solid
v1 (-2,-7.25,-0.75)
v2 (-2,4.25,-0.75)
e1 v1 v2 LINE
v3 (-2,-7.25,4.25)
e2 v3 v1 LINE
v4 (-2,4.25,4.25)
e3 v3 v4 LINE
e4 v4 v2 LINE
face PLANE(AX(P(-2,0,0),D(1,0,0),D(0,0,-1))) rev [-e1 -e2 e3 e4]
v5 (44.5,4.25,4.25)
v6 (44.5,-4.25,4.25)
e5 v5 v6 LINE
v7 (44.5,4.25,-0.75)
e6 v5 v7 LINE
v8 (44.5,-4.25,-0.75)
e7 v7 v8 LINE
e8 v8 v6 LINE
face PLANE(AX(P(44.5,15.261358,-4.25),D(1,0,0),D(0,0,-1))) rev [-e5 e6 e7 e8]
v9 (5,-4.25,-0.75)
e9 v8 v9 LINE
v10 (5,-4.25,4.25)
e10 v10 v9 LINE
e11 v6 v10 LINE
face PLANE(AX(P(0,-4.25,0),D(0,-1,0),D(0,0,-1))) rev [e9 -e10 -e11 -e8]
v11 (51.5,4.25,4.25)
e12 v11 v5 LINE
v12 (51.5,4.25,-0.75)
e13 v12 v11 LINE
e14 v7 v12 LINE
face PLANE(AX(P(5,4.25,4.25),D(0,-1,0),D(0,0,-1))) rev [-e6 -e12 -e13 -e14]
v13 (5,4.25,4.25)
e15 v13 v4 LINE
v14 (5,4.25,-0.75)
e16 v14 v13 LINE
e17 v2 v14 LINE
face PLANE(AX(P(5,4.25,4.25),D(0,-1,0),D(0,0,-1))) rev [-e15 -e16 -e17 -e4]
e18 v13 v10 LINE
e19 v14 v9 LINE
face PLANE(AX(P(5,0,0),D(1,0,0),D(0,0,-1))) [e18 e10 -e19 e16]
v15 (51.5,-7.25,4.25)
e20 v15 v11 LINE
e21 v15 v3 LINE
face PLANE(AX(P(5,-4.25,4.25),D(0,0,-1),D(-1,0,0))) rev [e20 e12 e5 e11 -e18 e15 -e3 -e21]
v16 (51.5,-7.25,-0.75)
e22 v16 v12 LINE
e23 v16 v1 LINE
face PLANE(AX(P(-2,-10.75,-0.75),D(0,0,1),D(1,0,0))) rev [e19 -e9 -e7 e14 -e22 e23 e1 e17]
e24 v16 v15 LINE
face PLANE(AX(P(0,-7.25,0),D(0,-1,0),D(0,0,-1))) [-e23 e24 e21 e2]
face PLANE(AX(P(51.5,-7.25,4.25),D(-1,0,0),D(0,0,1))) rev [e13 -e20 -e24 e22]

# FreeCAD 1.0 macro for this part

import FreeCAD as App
import Part
import Sketcher
from FreeCAD import Vector
Q = App.Units.Quantity

doc = App.newDocument("Part")
params = doc.addObject("Spreadsheet::Sheet", "Params")
for row, (alias, value) in enumerate([
    ("sketch1_width", "8.5 mm"),
    ("sketch1_height", "3.41 mm"),
    ("sketch1_length", "3.41 mm"),
    ("pad1_length", "5 mm"),
    ("sketch2_width", "8.5 mm"),
    ("pad2_length", "2 mm"),
    ("sketch3_diameter", "3 mm"),
    ("pocket1_length", "2 mm"),
    ("sketch4_width", "53.5 mm"),
    ("sketch4_height", "8.5 mm"),
    ("pad3_length", "3 mm"),
    ("sketch5_width", "7 mm"),
    ("sketch5_height", "8.5 mm"),
    ("pad4_length", "8.5 mm"),
    ("sketch6_diameter", "3 mm"),
    ("sketch6_height", "3.41 mm"),
    ("sketch6_length", "3.41 mm"),
    ("pad5_length", "2.5 mm"),
    ("sketch7_width", "8.5 mm"),
    ("sketch7_height", "3.41 mm"),
    ("sketch7_length", "3.41 mm"),
    ("pad6_length", "1 mm"),
    ("sketch8_height", "3.41 mm"),
    ("sketch8_length", "3.41 mm"),
    ("pocket2_length", "0.5 mm"),
    ("sketch9_width", "8.5 mm"),
    ("pad7_length", "8 mm"),
    ("sketch10_width", "8.5 mm"),
    ("pocket3_length", "1 mm"),
    ("sketch11_width", "53.5 mm"),
    ("sketch11_height", "3.5 mm"),
    ("pocket4_length", "15 mm"),
    ("sketch12_height", "5 mm"),
    ("sketch12_width", "8.5 mm"),
    ("pad8_length", "7 mm"),
], start=1):
    params.set(f"A{row}", alias)
    params.set(f"B{row}", "=" + value)
    params.setAlias(f"B{row}", alias)

body = doc.addObject("PartDesign::Body", "Body")

sketch1 = body.newObject("Sketcher::SketchObject", "Sketch")
sketch1.AttachmentSupport = (doc.getObject("YZ_Plane"), [""])
sketch1.MapMode = "FlatFace"
sketch1.addGeometry([
    Part.LineSegment(Vector(4.2, 4.2, 0), Vector(-4.2, 4.2, 0)),
    Part.LineSegment(Vector(-4.2, 4.2, 0), Vector(-4.2, -4.2, 0)),
    Part.LineSegment(Vector(-4.2, -4.2, 0), Vector(4.2, -4.2, 0)),
    Part.LineSegment(Vector(4.2, -4.2, 0), Vector(4.2, 4.2, 0)),
    Part.LineSegment(Vector(3, 1.7, 0), Vector(3, -1.7, 0)),
    Part.LineSegment(Vector(3, -1.7, 0), Vector(0, -3.4, 0)),
    Part.LineSegment(Vector(0, -3.4, 0), Vector(-3, -1.7, 0)),
    Part.LineSegment(Vector(-3, -1.7, 0), Vector(-3, 1.7, 0)),
    Part.LineSegment(Vector(-3, 1.7, 0), Vector(0, 3.4, 0)),
    Part.LineSegment(Vector(0, 3.4, 0), Vector(3, 1.7, 0)),
], False)
sketch1.addConstraint([
    Sketcher.Constraint("Coincident", 0, 2, 1, 1),
    Sketcher.Constraint("Coincident", 1, 2, 2, 1),
    Sketcher.Constraint("Coincident", 2, 2, 3, 1),
    Sketcher.Constraint("Coincident", 3, 2, 0, 1),
    Sketcher.Constraint("Coincident", 4, 2, 5, 1),
    Sketcher.Constraint("Coincident", 5, 2, 6, 1),
    Sketcher.Constraint("Coincident", 6, 2, 7, 1),
    Sketcher.Constraint("Coincident", 7, 2, 8, 1),
    Sketcher.Constraint("Coincident", 8, 2, 9, 1),
    Sketcher.Constraint("Coincident", 9, 2, 4, 1),
    Sketcher.Constraint("Horizontal", 0),
    Sketcher.Constraint("Vertical", 1),
    Sketcher.Constraint("Horizontal", 2),
    Sketcher.Constraint("Vertical", 3),
    Sketcher.Constraint("Vertical", 4),
    Sketcher.Constraint("Vertical", 7),
    Sketcher.Constraint("Symmetric", 0, 2, 2, 2, -1, 1),
    Sketcher.Constraint("Symmetric", 4, 2, 7, 2, -1, 1),
    Sketcher.Constraint("Symmetric", 5, 2, 8, 2, -1, 1),
    Sketcher.Constraint("PointOnObject", 5, 2, -2),
    Sketcher.Constraint("Parallel", 6, 9),
    Sketcher.Constraint("Horizontal", 4, 2, 6, 2),
    Sketcher.Constraint("Equal", 2, 1),
    Sketcher.Constraint("Angle", 5, Q("-150 deg")),
    Sketcher.Constraint("DistanceX", 0, 2, 0, 1, 8.5),
    Sketcher.Constraint("DistanceY", 4, 2, 4, 1, 3.41),
    Sketcher.Constraint("Distance", 5, 3.41),
])
sketch1.setExpression("Constraints[24]", "Params.sketch1_width")
sketch1.setExpression("Constraints[25]", "Params.sketch1_height")
sketch1.setExpression("Constraints[26]", "Params.sketch1_length")
pad1 = body.newObject("PartDesign::Pad", "Pad")
pad1.Profile = sketch1
pad1.setExpression("Length", "Params.pad1_length")

sketch2 = body.newObject("Sketcher::SketchObject", "Sketch001")
sketch2.AttachmentSupport = (doc.getObject("YZ_Plane"), [""])
sketch2.MapMode = "FlatFace"
sketch2.addGeometry([
    Part.LineSegment(Vector(4, -4, 0), Vector(-4, -4, 0)),
    Part.LineSegment(Vector(-4, -4, 0), Vector(-4, 4, 0)),
    Part.LineSegment(Vector(-4, 4, 0), Vector(4, 4, 0)),
    Part.LineSegment(Vector(4, 4, 0), Vector(4, -4, 0)),
], False)
sketch2.addConstraint([
    Sketcher.Constraint("Coincident", 0, 2, 1, 1),
    Sketcher.Constraint("Coincident", 1, 2, 2, 1),
    Sketcher.Constraint("Coincident", 2, 2, 3, 1),
    Sketcher.Constraint("Coincident", 3, 2, 0, 1),
    Sketcher.Constraint("Horizontal", 0),
    Sketcher.Constraint("Vertical", 1),
    Sketcher.Constraint("Horizontal", 2),
    Sketcher.Constraint("Vertical", 3),
    Sketcher.Constraint("Symmetric", 0, 2, 2, 2, -1, 1),
    Sketcher.Constraint("Equal", 2, 1),
    Sketcher.Constraint("DistanceX", 0, 2, 0, 1, 8.5),
])
sketch2.setExpression("Constraints[10]", "Params.sketch2_width")
pad2 = body.newObject("PartDesign::Pad", "Pad001")
pad2.Profile = sketch2
pad2.setExpression("Length", "Params.pad2_length")
pad2.Reversed = True

sketch3 = body.newObject("Sketcher::SketchObject", "Sketch002")
sketch3.AttachmentSupport = (doc.getObject("YZ_Plane"), [""])
sketch3.MapMode = "FlatFace"
sketch3.addGeometry(Part.Circle(Vector(0, 0, 0), Vector(0, 0, 1), 1.5), False)
sketch3.addConstraint([
    Sketcher.Constraint("Coincident", 0, 3, -1, 1),
    Sketcher.Constraint("Diameter", 0, 3.0),
])
sketch3.setExpression("Constraints[1]", "Params.sketch3_diameter")
pocket1 = body.newObject("PartDesign::Pocket", "Pocket")
pocket1.Profile = sketch3
pocket1.setExpression("Length", "Params.pocket1_length")

sketch4 = body.newObject("Sketcher::SketchObject", "Sketch003")
sketch4.AttachmentSupport = (doc.getObject("XZ_Plane"), [""])
sketch4.MapMode = "FlatFace"
sketch4.AttachmentOffset = App.Placement(Vector(0, 0, 4.25), App.Rotation())
sketch4.addGeometry([
    Part.LineSegment(Vector(-2, 4, 0), Vector(-2, -4, 0)),
    Part.LineSegment(Vector(-2, -4, 0), Vector(52, -4, 0)),
    Part.LineSegment(Vector(52, -4, 0), Vector(52, 4, 0)),
    Part.LineSegment(Vector(52, 4, 0), Vector(-2, 4, 0)),
], False)
sketch4.addConstraint([
    Sketcher.Constraint("Coincident", 0, 2, 1, 1),
    Sketcher.Constraint("Coincident", 1, 2, 2, 1),
    Sketcher.Constraint("Coincident", 2, 2, 3, 1),
    Sketcher.Constraint("Coincident", 3, 2, 0, 1),
    Sketcher.Constraint("Vertical", 0),
    Sketcher.Constraint("Horizontal", 1),
    Sketcher.Constraint("Vertical", 2),
    Sketcher.Constraint("Horizontal", 3),
    Sketcher.Constraint("DistanceX", 1, 1, 1, 2, 53.5),
    Sketcher.Constraint("DistanceY", 0, 2, 0, 1, 8.5),
    Sketcher.Constraint("DistanceX", 0, 2, -1, 1, 2.0),
    Sketcher.Constraint("DistanceY", 0, 2, -1, 1, 4.25),
])
sketch4.setExpression("Constraints[8]", "Params.sketch4_width")
sketch4.setExpression("Constraints[9]", "Params.sketch4_height")
pad3 = body.newObject("PartDesign::Pad", "Pad002")
pad3.Profile = sketch4
pad3.setExpression("Length", "Params.pad3_length")

sketch5 = body.newObject("Sketcher::SketchObject", "Sketch004")
sketch5.AttachmentSupport = (doc.getObject("XZ_Plane"), [""])
sketch5.MapMode = "FlatFace"
sketch5.AttachmentOffset = App.Placement(Vector(0, 0, 4.25), App.Rotation())
sketch5.addGeometry([
    Part.LineSegment(Vector(44, -4, 0), Vector(44, 4, 0)),
    Part.LineSegment(Vector(44, 4, 0), Vector(52, 4, 0)),
    Part.LineSegment(Vector(52, 4, 0), Vector(52, -4, 0)),
    Part.LineSegment(Vector(52, -4, 0), Vector(44, -4, 0)),
], False)
sketch5.addConstraint([
    Sketcher.Constraint("Coincident", 0, 2, 1, 1),
    Sketcher.Constraint("Coincident", 1, 2, 2, 1),
    Sketcher.Constraint("Coincident", 2, 2, 3, 1),
    Sketcher.Constraint("Coincident", 3, 2, 0, 1),
    Sketcher.Constraint("Vertical", 0),
    Sketcher.Constraint("Horizontal", 1),
    Sketcher.Constraint("Vertical", 2),
    Sketcher.Constraint("Horizontal", 3),
    Sketcher.Constraint("DistanceX", 1, 1, 1, 2, 7.0),
    Sketcher.Constraint("DistanceY", 0, 1, 0, 2, 8.5),
    Sketcher.Constraint("DistanceX", -1, 1, 0, 2, 44.5),
    Sketcher.Constraint("DistanceY", -1, 1, 0, 2, 4.25),
])
sketch5.setExpression("Constraints[8]", "Params.sketch5_width")
sketch5.setExpression("Constraints[9]", "Params.sketch5_height")
pad4 = body.newObject("PartDesign::Pad", "Pad003")
pad4.Profile = sketch5
pad4.setExpression("Length", "Params.pad4_length")
pad4.Reversed = True

sketch6 = body.newObject("Sketcher::SketchObject", "Sketch005")
sketch6.AttachmentSupport = (doc.getObject("YZ_Plane"), [""])
sketch6.MapMode = "FlatFace"
sketch6.addGeometry([
    Part.LineSegment(Vector(3, 1.7, 0), Vector(0, 3.4, 0)),
    Part.LineSegment(Vector(0, 3.4, 0), Vector(-3, 1.7, 0)),
    Part.LineSegment(Vector(-3, 1.7, 0), Vector(-3, -1.7, 0)),
    Part.LineSegment(Vector(-3, -1.7, 0), Vector(0, -3.4, 0)),
    Part.LineSegment(Vector(0, -3.4, 0), Vector(3, -1.7, 0)),
    Part.LineSegment(Vector(3, -1.7, 0), Vector(3, 1.7, 0)),
    Part.Circle(Vector(0, 0, 0), Vector(0, 0, 1), 1.5),
], False)
sketch6.addConstraint([
    Sketcher.Constraint("Coincident", 0, 2, 1, 1),
    Sketcher.Constraint("Coincident", 1, 2, 2, 1),
    Sketcher.Constraint("Coincident", 2, 2, 3, 1),
    Sketcher.Constraint("Coincident", 3, 2, 4, 1),
    Sketcher.Constraint("Coincident", 4, 2, 5, 1),
    Sketcher.Constraint("Coincident", 5, 2, 0, 1),
    Sketcher.Constraint("Vertical", 2),
    Sketcher.Constraint("Vertical", 5),
    Sketcher.Constraint("Coincident", 6, 3, -1, 1),
    Sketcher.Constraint("Symmetric", 0, 2, 3, 2, -1, 1),
    Sketcher.Constraint("Symmetric", 1, 2, 4, 2, -1, 1),
    Sketcher.Constraint("PointOnObject", 0, 2, -2),
    Sketcher.Constraint("Parallel", 0, 3),
    Sketcher.Constraint("Horizontal", 2, 2, 4, 2),
    Sketcher.Constraint("Diameter", 6, 3.0),
    Sketcher.Constraint("Angle", 0, Q("150 deg")),
    Sketcher.Constraint("DistanceY", 2, 2, 2, 1, 3.41),
    Sketcher.Constraint("Distance", 0, 3.41),
])
sketch6.setExpression("Constraints[14]", "Params.sketch6_diameter")
sketch6.setExpression("Constraints[16]", "Params.sketch6_height")
sketch6.setExpression("Constraints[17]", "Params.sketch6_length")
pad5 = body.newObject("PartDesign::Pad", "Pad004")
pad5.Profile = sketch6
pad5.setExpression("Length", "Params.pad5_length")

sketch7 = body.newObject("Sketcher::SketchObject", "Sketch006")
sketch7.AttachmentSupport = (doc.getObject("YZ_Plane"), [""])
sketch7.MapMode = "FlatFace"
sketch7.AttachmentOffset = App.Placement(Vector(0, 0, 5), App.Rotation())
sketch7.addGeometry([
    Part.LineSegment(Vector(4.2, 4.2, 0), Vector(-4.2, 4.2, 0)),
    Part.LineSegment(Vector(-4.2, 4.2, 0), Vector(-4.2, -4.2, 0)),
    Part.LineSegment(Vector(-4.2, -4.2, 0), Vector(4.2, -4.2, 0)),
    Part.LineSegment(Vector(4.2, -4.2, 0), Vector(4.2, 4.2, 0)),
    Part.LineSegment(Vector(3, -1.7, 0), Vector(0, -3.4, 0)),
    Part.LineSegment(Vector(0, -3.4, 0), Vector(-3, -1.7, 0)),
    Part.LineSegment(Vector(-3, -1.7, 0), Vector(-3, 1.7, 0)),
    Part.LineSegment(Vector(-3, 1.7, 0), Vector(0, 3.4, 0)),
    Part.LineSegment(Vector(0, 3.4, 0), Vector(3, 1.7, 0)),
    Part.LineSegment(Vector(3, 1.7, 0), Vector(3, -1.7, 0)),
], False)
sketch7.addConstraint([
    Sketcher.Constraint("Coincident", 0, 2, 1, 1),
    Sketcher.Constraint("Coincident", 1, 2, 2, 1),
    Sketcher.Constraint("Coincident", 2, 2, 3, 1),
    Sketcher.Constraint("Coincident", 3, 2, 0, 1),
    Sketcher.Constraint("Coincident", 4, 2, 5, 1),
    Sketcher.Constraint("Coincident", 5, 2, 6, 1),
    Sketcher.Constraint("Coincident", 6, 2, 7, 1),
    Sketcher.Constraint("Coincident", 7, 2, 8, 1),
    Sketcher.Constraint("Coincident", 8, 2, 9, 1),
    Sketcher.Constraint("Coincident", 9, 2, 4, 1),
    Sketcher.Constraint("Horizontal", 0),
    Sketcher.Constraint("Vertical", 1),
    Sketcher.Constraint("Horizontal", 2),
    Sketcher.Constraint("Vertical", 3),
    Sketcher.Constraint("Vertical", 6),
    Sketcher.Constraint("Vertical", 9),
    Sketcher.Constraint("Symmetric", 0, 2, 2, 2, -1, 1),
    Sketcher.Constraint("Symmetric", 4, 2, 7, 2, -1, 1),
    Sketcher.Constraint("Symmetric", 5, 2, 8, 2, -1, 1),
    Sketcher.Constraint("PointOnObject", 4, 2, -2),
    Sketcher.Constraint("Parallel", 4, 7),
    Sketcher.Constraint("Horizontal", 6, 2, 8, 2),
    Sketcher.Constraint("Equal", 2, 1),
    Sketcher.Constraint("Angle", 4, Q("-150 deg")),
    Sketcher.Constraint("DistanceX", 0, 2, 0, 1, 8.5),
    Sketcher.Constraint("DistanceY", 6, 1, 6, 2, 3.41),
    Sketcher.Constraint("Distance", 4, 3.41),
])
sketch7.setExpression("Constraints[24]", "Params.sketch7_width")
sketch7.setExpression("Constraints[25]", "Params.sketch7_height")
sketch7.setExpression("Constraints[26]", "Params.sketch7_length")
pad6 = body.newObject("PartDesign::Pad", "Pad005")
pad6.Profile = sketch7
pad6.setExpression("Length", "Params.pad6_length")

sketch8 = body.newObject("Sketcher::SketchObject", "Sketch007")
sketch8.AttachmentSupport = (doc.getObject("YZ_Plane"), [""])
sketch8.MapMode = "FlatFace"
sketch8.AttachmentOffset = App.Placement(Vector(0, 0, 2.5), App.Rotation())
sketch8.addGeometry([
    Part.LineSegment(Vector(-3, -1.7, 0), Vector(0, -3.4, 0)),
    Part.LineSegment(Vector(0, -3.4, 0), Vector(3, -1.7, 0)),
    Part.LineSegment(Vector(3, -1.7, 0), Vector(3, 1.7, 0)),
    Part.LineSegment(Vector(3, 1.7, 0), Vector(0, 3.4, 0)),
    Part.LineSegment(Vector(0, 3.4, 0), Vector(-3, 1.7, 0)),
    Part.LineSegment(Vector(-3, 1.7, 0), Vector(-3, -1.7, 0)),
], False)
sketch8.addConstraint([
    Sketcher.Constraint("Coincident", 0, 2, 1, 1),
    Sketcher.Constraint("Coincident", 1, 2, 2, 1),
    Sketcher.Constraint("Coincident", 2, 2, 3, 1),
    Sketcher.Constraint("Coincident", 3, 2, 4, 1),
    Sketcher.Constraint("Coincident", 4, 2, 5, 1),
    Sketcher.Constraint("Coincident", 5, 2, 0, 1),
    Sketcher.Constraint("Vertical", 2),
    Sketcher.Constraint("Vertical", 5),
    Sketcher.Constraint("Symmetric", 0, 2, 3, 2, -1, 1),
    Sketcher.Constraint("Symmetric", 1, 2, 4, 2, -1, 1),
    Sketcher.Constraint("PointOnObject", 0, 2, -2),
    Sketcher.Constraint("Parallel", 0, 3),
    Sketcher.Constraint("Horizontal", 2, 2, 4, 2),
    Sketcher.Constraint("Angle", 0, Q("-30 deg")),
    Sketcher.Constraint("DistanceY", 2, 1, 2, 2, 3.41),
    Sketcher.Constraint("Distance", 0, 3.41),
])
sketch8.setExpression("Constraints[14]", "Params.sketch8_height")
sketch8.setExpression("Constraints[15]", "Params.sketch8_length")
pocket2 = body.newObject("PartDesign::Pocket", "Pocket001")
pocket2.Profile = sketch8
pocket2.setExpression("Length", "Params.pocket2_length")

sketch9 = body.newObject("Sketcher::SketchObject", "Sketch008")
sketch9.AttachmentSupport = (doc.getObject("YZ_Plane"), [""])
sketch9.MapMode = "FlatFace"
sketch9.AttachmentOffset = App.Placement(Vector(0, 0, 6), App.Rotation())
sketch9.addGeometry([
    Part.LineSegment(Vector(4, 4, 0), Vector(-4, 4, 0)),
    Part.LineSegment(Vector(-4, 4, 0), Vector(-4, -4, 0)),
    Part.LineSegment(Vector(-4, -4, 0), Vector(4, -4, 0)),
    Part.LineSegment(Vector(4, -4, 0), Vector(4, 4, 0)),
], False)
sketch9.addConstraint([
    Sketcher.Constraint("Coincident", 0, 2, 1, 1),
    Sketcher.Constraint("Coincident", 1, 2, 2, 1),
    Sketcher.Constraint("Coincident", 2, 2, 3, 1),
    Sketcher.Constraint("Coincident", 3, 2, 0, 1),
    Sketcher.Constraint("Horizontal", 0),
    Sketcher.Constraint("Vertical", 1),
    Sketcher.Constraint("Horizontal", 2),
    Sketcher.Constraint("Vertical", 3),
    Sketcher.Constraint("Symmetric", 0, 2, 2, 2, -1, 1),
    Sketcher.Constraint("Equal", 2, 1),
    Sketcher.Constraint("DistanceX", 0, 2, 0, 1, 8.5),
])
sketch9.setExpression("Constraints[10]", "Params.sketch9_width")
pad7 = body.newObject("PartDesign::Pad", "Pad006")
pad7.Profile = sketch9
pad7.setExpression("Length", "Params.pad7_length")
pad7.Reversed = True

sketch10 = body.newObject("Sketcher::SketchObject", "Sketch009")
sketch10.AttachmentSupport = (doc.getObject("YZ_Plane"), [""])
sketch10.MapMode = "FlatFace"
sketch10.AttachmentOffset = App.Placement(Vector(0, 0, 6), App.Rotation())
sketch10.addGeometry([
    Part.LineSegment(Vector(4, 4, 0), Vector(-4, 4, 0)),
    Part.LineSegment(Vector(-4, 4, 0), Vector(-4, -4, 0)),
    Part.LineSegment(Vector(-4, -4, 0), Vector(4, -4, 0)),
    Part.LineSegment(Vector(4, -4, 0), Vector(4, 4, 0)),
], False)
sketch10.addConstraint([
    Sketcher.Constraint("Coincident", 0, 2, 1, 1),
    Sketcher.Constraint("Coincident", 1, 2, 2, 1),
    Sketcher.Constraint("Coincident", 2, 2, 3, 1),
    Sketcher.Constraint("Coincident", 3, 2, 0, 1),
    Sketcher.Constraint("Horizontal", 0),
    Sketcher.Constraint("Vertical", 1),
    Sketcher.Constraint("Horizontal", 2),
    Sketcher.Constraint("Vertical", 3),
    Sketcher.Constraint("Symmetric", 0, 2, 2, 2, -1, 1),
    Sketcher.Constraint("Equal", 2, 1),
    Sketcher.Constraint("DistanceX", 0, 2, 0, 1, 8.5),
])
sketch10.setExpression("Constraints[10]", "Params.sketch10_width")
pocket3 = body.newObject("PartDesign::Pocket", "Pocket002")
pocket3.Profile = sketch10
pocket3.setExpression("Length", "Params.pocket3_length")

sketch11 = body.newObject("Sketcher::SketchObject", "Sketch010")
sketch11.AttachmentSupport = (doc.getObject("XZ_Plane"), [""])
sketch11.MapMode = "FlatFace"
sketch11.AttachmentOffset = App.Placement(Vector(0, 0, -4.25), App.Rotation())
sketch11.addGeometry([
    Part.LineSegment(Vector(-2, -4.2, 0), Vector(-2, -0.8, 0)),
    Part.LineSegment(Vector(-2, -0.8, 0), Vector(51.5, -0.8, 0)),
    Part.LineSegment(Vector(51.5, -0.8, 0), Vector(51.5, -4.2, 0)),
    Part.LineSegment(Vector(51.5, -4.2, 0), Vector(-2, -4.2, 0)),
], False)
sketch11.addConstraint([
    Sketcher.Constraint("Coincident", 0, 2, 1, 1),
    Sketcher.Constraint("Coincident", 1, 2, 2, 1),
    Sketcher.Constraint("Coincident", 2, 2, 3, 1),
    Sketcher.Constraint("Coincident", 3, 2, 0, 1),
    Sketcher.Constraint("Vertical", 0),
    Sketcher.Constraint("Horizontal", 1),
    Sketcher.Constraint("Vertical", 2),
    Sketcher.Constraint("Horizontal", 3),
    Sketcher.Constraint("DistanceX", 1, 1, 1, 2, 53.5),
    Sketcher.Constraint("DistanceY", 0, 1, 0, 2, 3.5),
    Sketcher.Constraint("DistanceX", 0, 2, -1, 1, 2.0),
    Sketcher.Constraint("DistanceY", 0, 2, -1, 1, 0.75),
])
sketch11.setExpression("Constraints[8]", "Params.sketch11_width")
sketch11.setExpression("Constraints[9]", "Params.sketch11_height")
pocket4 = body.newObject("PartDesign::Pocket", "Pocket003")
pocket4.Profile = sketch11
pocket4.setExpression("Length", "Params.pocket4_length")
pocket4.Reversed = True

sketch12 = body.newObject("Sketcher::SketchObject", "Sketch011")
sketch12.AttachmentSupport = (doc.getObject("YZ_Plane"), [""])
sketch12.MapMode = "FlatFace"
sketch12.AttachmentOffset = App.Placement(Vector(0, 0, 44.5), App.Rotation())
sketch12.addGeometry([
    Part.LineSegment(Vector(4, -1, 0), Vector(-4, -1, 0)),
    Part.LineSegment(Vector(-4, -1, 0), Vector(-4, 4, 0)),
    Part.LineSegment(Vector(-4, 4, 0), Vector(4, 4, 0)),
    Part.LineSegment(Vector(4, 4, 0), Vector(4, -1, 0)),
], False)
sketch12.addConstraint([
    Sketcher.Constraint("Coincident", 0, 2, 1, 1),
    Sketcher.Constraint("Coincident", 1, 2, 2, 1),
    Sketcher.Constraint("Coincident", 2, 2, 3, 1),
    Sketcher.Constraint("Coincident", 3, 2, 0, 1),
    Sketcher.Constraint("Horizontal", 0),
    Sketcher.Constraint("Vertical", 1),
    Sketcher.Constraint("Horizontal", 2),
    Sketcher.Constraint("Vertical", 3),
    Sketcher.Constraint("DistanceY", 1, 1, 1, 2, 5.0),
    Sketcher.Constraint("DistanceX", 0, 2, 0, 1, 8.5),
    Sketcher.Constraint("DistanceX", 0, 2, -1, 1, 4.25),
    Sketcher.Constraint("DistanceY", 0, 2, -1, 1, 0.75),
])
sketch12.setExpression("Constraints[8]", "Params.sketch12_height")
sketch12.setExpression("Constraints[9]", "Params.sketch12_width")
pad8 = body.newObject("PartDesign::Pad", "Pad007")
pad8.Profile = sketch12
pad8.setExpression("Length", "Params.pad8_length")

doc.recompute()
